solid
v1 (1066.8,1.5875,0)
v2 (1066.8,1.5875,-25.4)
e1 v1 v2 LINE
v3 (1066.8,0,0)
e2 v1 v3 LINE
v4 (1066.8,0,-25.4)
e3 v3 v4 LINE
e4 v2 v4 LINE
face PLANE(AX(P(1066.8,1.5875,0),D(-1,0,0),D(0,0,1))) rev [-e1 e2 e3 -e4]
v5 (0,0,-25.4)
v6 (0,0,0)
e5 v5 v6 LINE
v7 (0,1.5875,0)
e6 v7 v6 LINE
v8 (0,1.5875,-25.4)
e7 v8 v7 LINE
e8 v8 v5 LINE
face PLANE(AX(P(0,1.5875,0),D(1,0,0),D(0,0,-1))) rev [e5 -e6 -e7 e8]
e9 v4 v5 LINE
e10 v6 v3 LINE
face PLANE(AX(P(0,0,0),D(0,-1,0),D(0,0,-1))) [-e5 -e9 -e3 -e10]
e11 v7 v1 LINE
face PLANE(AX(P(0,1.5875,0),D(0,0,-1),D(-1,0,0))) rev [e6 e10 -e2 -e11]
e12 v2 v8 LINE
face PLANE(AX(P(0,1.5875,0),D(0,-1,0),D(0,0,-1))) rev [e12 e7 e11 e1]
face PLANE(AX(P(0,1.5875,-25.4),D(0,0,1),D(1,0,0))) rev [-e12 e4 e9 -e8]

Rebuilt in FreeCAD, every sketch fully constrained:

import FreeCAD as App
import Part
import Sketcher
Q = App.Units.Quantity

doc = App.newDocument("Part")
body = doc.addObject("PartDesign::Body", "Body")

sketch1 = body.newObject("Sketcher::SketchObject", "Sketch")
sketch1.AttachmentSupport = (doc.getObject("XZ_Plane"), [""])
sketch1.MapMode = "FlatFace"
sketch1.addGeometry([
    Part.LineSegment(App.Vector(0, -25.4, 0), App.Vector(0, 0, 0)),
    Part.LineSegment(App.Vector(0, 0, 0), App.Vector(1066.8, 0, 0)),
    Part.LineSegment(App.Vector(1066.8, 0, 0), App.Vector(1066.8, -25.4, 0)),
    Part.LineSegment(App.Vector(1066.8, -25.4, 0), App.Vector(0, -25.4, 0)),
], False)
sketch1.addConstraint([
    Sketcher.Constraint("Coincident", 0, 2, 1, 1),
    Sketcher.Constraint("Coincident", 1, 2, 2, 1),
    Sketcher.Constraint("Coincident", 2, 2, 3, 1),
    Sketcher.Constraint("Coincident", 3, 2, 0, 1),
    Sketcher.Constraint("Vertical", 0),
    Sketcher.Constraint("Horizontal", 1),
    Sketcher.Constraint("Vertical", 2),
    Sketcher.Constraint("Horizontal", 3),
    Sketcher.Constraint("Coincident", 0, 2, -1, 1),
    Sketcher.Constraint("DistanceX", 1, 1, 1, 2, Q("42 in")),
    Sketcher.Constraint("DistanceY", 0, 1, 0, 2, Q("1 in")),
])
pad1 = body.newObject("PartDesign::Pad", "Pad")
pad1.Profile = sketch1
pad1.Length = Q("0.0625 in")
pad1.Reversed = True

doc.recompute()
